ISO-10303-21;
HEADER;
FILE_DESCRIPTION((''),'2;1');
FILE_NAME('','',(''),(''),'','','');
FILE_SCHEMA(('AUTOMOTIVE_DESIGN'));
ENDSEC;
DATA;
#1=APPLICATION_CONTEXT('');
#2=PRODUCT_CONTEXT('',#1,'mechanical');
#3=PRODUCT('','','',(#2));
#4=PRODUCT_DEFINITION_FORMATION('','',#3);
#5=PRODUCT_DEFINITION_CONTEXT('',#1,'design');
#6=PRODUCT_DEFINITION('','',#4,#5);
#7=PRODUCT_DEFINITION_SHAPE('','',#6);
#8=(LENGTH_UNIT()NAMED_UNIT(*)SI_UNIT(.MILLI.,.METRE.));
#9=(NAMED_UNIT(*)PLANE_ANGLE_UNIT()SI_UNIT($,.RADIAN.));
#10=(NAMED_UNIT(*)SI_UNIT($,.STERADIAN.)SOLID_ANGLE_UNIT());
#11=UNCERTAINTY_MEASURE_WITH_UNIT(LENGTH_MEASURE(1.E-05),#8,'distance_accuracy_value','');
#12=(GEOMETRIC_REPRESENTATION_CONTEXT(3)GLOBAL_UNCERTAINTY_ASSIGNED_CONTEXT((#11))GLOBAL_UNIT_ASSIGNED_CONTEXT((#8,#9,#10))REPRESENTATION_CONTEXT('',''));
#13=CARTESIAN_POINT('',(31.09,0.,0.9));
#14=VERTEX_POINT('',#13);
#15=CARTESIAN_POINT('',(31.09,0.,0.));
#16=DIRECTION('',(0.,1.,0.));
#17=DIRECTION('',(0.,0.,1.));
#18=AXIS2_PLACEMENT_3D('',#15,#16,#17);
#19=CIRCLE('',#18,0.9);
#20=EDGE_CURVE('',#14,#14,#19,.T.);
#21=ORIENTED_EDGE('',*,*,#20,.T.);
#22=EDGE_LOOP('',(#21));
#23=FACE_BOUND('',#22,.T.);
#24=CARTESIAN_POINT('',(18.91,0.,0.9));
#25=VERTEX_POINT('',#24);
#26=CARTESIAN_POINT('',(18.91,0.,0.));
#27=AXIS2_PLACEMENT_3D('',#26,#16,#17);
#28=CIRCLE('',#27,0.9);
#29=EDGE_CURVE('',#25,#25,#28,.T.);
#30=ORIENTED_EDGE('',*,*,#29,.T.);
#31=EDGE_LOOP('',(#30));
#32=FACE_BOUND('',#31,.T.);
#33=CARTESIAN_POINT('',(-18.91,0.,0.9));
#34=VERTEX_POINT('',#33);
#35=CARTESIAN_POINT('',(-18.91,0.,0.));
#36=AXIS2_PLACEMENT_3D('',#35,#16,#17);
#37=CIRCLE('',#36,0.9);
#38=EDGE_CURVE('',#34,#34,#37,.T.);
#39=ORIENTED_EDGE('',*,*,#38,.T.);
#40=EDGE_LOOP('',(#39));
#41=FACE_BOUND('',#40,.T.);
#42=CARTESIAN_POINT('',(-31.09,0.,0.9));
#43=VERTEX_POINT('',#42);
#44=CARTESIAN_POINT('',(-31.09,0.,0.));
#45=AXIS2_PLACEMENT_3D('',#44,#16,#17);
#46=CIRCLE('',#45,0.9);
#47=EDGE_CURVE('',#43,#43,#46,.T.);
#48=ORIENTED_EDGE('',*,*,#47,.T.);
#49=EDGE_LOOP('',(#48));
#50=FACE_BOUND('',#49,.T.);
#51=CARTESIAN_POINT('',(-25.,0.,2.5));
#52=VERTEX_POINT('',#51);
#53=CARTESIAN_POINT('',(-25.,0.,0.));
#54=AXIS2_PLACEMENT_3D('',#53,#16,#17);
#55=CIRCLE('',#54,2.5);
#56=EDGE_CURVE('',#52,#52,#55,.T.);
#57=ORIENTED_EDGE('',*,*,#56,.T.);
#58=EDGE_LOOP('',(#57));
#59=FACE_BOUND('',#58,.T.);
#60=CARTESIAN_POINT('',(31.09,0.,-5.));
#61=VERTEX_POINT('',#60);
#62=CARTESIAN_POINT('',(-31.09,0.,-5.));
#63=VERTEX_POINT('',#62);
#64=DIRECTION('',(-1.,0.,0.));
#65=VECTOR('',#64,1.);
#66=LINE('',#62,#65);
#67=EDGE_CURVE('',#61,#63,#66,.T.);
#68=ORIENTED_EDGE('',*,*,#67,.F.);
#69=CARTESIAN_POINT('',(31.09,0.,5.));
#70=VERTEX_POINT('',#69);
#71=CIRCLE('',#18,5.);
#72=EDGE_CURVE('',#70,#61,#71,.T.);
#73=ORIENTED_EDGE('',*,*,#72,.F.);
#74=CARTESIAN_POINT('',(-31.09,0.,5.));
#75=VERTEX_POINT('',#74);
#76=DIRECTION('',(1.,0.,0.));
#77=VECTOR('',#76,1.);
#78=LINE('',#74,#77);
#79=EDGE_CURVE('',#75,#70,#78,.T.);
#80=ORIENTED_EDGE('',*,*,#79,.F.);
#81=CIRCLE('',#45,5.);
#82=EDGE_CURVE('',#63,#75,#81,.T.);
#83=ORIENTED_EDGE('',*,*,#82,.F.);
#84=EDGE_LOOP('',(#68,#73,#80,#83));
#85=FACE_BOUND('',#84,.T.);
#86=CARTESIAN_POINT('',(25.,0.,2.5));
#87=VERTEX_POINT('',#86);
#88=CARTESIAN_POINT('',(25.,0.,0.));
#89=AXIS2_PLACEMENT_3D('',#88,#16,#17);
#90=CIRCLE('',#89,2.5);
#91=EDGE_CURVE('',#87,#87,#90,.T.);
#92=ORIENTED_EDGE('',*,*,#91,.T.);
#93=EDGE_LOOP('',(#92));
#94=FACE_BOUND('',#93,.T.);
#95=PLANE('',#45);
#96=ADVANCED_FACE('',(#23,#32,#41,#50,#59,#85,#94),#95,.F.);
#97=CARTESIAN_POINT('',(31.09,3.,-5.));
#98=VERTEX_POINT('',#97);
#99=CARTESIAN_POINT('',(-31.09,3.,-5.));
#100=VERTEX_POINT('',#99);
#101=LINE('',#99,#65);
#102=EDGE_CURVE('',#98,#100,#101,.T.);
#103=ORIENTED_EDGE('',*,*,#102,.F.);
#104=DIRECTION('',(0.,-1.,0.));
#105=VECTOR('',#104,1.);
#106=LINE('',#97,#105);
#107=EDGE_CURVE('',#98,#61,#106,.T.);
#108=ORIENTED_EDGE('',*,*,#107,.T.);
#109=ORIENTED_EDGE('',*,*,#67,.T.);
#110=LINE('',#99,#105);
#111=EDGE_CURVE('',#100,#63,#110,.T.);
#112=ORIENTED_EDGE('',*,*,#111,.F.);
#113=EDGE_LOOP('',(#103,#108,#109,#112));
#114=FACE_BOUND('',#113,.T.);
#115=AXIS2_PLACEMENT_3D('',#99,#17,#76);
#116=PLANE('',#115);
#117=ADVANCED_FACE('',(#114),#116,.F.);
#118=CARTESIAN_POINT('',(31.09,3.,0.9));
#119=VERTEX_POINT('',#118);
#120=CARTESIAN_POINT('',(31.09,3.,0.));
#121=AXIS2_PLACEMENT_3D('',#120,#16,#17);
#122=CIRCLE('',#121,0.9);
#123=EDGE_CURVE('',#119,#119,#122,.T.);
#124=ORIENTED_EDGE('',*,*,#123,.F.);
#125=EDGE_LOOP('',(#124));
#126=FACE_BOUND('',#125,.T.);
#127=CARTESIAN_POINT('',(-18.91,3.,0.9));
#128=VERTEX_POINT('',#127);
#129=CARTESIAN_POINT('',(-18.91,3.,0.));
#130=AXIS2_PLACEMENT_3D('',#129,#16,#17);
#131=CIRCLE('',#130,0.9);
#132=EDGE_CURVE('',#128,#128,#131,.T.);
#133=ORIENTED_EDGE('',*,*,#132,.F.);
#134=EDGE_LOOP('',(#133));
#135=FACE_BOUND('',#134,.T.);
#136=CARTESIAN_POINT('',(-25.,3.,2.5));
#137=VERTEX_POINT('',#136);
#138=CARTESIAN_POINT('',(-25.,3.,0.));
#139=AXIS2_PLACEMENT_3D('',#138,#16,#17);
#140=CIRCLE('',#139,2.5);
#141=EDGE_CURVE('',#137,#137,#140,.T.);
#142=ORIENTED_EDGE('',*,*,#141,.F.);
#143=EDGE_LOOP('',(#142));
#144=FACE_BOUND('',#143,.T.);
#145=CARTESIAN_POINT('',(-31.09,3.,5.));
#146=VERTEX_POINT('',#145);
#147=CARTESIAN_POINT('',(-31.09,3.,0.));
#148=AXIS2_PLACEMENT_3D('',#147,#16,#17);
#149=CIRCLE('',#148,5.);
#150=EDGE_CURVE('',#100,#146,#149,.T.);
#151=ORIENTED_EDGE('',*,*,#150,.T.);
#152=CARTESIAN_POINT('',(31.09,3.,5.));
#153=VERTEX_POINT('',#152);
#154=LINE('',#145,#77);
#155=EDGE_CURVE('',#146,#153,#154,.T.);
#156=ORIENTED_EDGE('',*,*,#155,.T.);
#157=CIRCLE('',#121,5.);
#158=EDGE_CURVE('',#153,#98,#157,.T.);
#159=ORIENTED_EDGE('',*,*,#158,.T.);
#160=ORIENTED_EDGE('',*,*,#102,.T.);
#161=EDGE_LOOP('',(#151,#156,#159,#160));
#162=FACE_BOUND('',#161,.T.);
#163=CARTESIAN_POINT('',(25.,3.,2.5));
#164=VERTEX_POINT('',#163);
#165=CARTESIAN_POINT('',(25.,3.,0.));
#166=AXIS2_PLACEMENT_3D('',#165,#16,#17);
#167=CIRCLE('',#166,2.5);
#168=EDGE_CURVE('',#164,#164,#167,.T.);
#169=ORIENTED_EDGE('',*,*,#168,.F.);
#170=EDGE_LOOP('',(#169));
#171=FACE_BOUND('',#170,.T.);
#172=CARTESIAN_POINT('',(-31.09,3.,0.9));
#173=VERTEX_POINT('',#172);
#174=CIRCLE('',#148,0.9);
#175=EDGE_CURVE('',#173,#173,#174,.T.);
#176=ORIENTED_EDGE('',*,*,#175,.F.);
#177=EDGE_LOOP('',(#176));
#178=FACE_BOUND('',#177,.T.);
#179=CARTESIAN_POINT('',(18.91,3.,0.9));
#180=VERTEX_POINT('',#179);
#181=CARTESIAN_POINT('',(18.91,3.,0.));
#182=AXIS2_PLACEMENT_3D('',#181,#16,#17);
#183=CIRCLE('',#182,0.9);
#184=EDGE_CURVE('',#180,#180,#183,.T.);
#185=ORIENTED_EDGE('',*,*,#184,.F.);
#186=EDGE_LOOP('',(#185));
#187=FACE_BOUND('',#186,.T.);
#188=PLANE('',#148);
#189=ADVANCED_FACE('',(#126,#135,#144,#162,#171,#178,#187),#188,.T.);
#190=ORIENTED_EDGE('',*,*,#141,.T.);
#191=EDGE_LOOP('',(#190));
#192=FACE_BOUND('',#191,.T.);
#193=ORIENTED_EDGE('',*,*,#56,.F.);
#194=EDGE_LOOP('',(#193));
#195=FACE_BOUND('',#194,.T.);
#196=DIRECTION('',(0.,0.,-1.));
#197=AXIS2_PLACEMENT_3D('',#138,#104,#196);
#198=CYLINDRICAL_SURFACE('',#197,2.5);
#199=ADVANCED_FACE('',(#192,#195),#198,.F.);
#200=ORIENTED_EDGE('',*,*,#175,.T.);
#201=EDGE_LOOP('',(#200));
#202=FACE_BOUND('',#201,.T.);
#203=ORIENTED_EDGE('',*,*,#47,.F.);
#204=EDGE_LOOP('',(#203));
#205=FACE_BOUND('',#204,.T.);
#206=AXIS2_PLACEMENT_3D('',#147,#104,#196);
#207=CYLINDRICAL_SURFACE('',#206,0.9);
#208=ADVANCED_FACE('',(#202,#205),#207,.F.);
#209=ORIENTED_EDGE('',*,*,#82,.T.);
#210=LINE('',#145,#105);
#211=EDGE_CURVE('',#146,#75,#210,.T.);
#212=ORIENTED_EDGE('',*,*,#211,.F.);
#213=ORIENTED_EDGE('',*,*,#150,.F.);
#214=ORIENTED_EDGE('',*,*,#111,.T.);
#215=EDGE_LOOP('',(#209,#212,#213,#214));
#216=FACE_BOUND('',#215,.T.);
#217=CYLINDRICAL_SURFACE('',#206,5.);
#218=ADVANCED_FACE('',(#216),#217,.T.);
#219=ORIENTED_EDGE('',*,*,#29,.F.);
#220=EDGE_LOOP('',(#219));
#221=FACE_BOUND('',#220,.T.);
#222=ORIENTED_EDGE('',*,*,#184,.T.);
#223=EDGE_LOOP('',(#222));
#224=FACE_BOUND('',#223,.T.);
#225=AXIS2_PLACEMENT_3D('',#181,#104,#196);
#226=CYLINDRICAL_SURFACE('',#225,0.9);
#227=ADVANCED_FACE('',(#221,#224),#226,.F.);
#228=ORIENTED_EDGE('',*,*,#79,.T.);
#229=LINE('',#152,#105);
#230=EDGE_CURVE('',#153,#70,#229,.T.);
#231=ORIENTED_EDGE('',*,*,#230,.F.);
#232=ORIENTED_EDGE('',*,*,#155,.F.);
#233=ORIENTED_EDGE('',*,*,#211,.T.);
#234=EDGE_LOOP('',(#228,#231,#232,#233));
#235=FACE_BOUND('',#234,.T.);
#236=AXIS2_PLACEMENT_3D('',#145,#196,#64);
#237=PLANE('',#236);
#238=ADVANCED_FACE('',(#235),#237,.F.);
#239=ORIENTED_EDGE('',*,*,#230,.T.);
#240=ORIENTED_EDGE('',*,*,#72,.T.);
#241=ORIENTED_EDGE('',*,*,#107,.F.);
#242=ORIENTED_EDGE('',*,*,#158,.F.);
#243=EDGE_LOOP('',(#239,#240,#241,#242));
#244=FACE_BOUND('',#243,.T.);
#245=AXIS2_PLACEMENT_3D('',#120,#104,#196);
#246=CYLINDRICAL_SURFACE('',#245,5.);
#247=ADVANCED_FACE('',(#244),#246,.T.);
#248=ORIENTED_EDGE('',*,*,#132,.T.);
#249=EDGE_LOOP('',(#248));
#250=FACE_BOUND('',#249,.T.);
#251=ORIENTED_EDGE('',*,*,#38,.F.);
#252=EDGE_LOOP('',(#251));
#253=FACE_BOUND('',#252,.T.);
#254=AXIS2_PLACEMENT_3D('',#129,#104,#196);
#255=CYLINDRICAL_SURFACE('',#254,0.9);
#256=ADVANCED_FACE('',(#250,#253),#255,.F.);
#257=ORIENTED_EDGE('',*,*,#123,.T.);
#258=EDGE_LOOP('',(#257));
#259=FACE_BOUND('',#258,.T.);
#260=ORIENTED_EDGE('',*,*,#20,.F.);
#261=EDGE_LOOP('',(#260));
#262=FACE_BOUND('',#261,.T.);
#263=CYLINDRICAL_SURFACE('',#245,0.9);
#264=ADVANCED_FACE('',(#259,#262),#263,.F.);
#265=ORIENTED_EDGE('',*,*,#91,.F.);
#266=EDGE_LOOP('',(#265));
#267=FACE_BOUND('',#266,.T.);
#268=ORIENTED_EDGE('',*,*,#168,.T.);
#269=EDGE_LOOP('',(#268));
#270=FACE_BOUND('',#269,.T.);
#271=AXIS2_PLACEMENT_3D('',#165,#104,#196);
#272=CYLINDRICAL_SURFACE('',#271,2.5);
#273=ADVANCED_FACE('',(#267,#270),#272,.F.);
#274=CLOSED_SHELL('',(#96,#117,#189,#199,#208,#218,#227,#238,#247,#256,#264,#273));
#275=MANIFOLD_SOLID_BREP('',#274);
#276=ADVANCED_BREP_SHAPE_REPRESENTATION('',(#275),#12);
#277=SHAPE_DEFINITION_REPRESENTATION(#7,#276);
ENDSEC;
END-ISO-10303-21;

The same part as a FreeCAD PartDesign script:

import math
import FreeCAD as App
import Part
import Sketcher

V = App.Vector
Q = App.Units.Quantity

doc = App.newDocument("Part")
body = doc.addObject("PartDesign::Body", "Body")

sketch1 = body.newObject("Sketcher::SketchObject", "Sketch")
sketch1.AttachmentSupport = (doc.getObject("XZ_Plane"), [""])
sketch1.MapMode = "FlatFace"
sketch1.addGeometry([
    Part.LineSegment(V(31.1, -5, 0), V(-31.1, -5, 0)),
    Part.ArcOfCircle(Part.Circle(V(-31.1, 0, 0), V(0, 0, 1), 5), math.radians(90), math.radians(270)),
    Part.LineSegment(V(-31.1, 5, 0), V(31.1, 5, 0)),
    Part.ArcOfCircle(Part.Circle(V(31.1, 0, 0), V(0, 0, 1), 5), math.radians(-90), math.radians(90)),
    Part.Circle(V(31.1, 0, 0), V(0, 0, 1), 0.9),
    Part.Circle(V(25, 0, 0), V(0, 0, 1), 2.5),
    Part.Circle(V(18.9, 0, 0), V(0, 0, 1), 0.9),
    Part.Circle(V(-18.9, 0, 0), V(0, 0, 1), 0.9),
    Part.Circle(V(-25, 0, 0), V(0, 0, 1), 2.5),
    Part.Circle(V(-31.1, 0, 0), V(0, 0, 1), 0.9),
], False)
sketch1.addConstraint([
    Sketcher.Constraint("Tangent", 0, 2, 1, 2),
    Sketcher.Constraint("Tangent", 1, 1, 2, 1),
    Sketcher.Constraint("Tangent", 2, 2, 3, 2),
    Sketcher.Constraint("Tangent", 3, 1, 0, 1),
    Sketcher.Constraint("Horizontal", 0),
    Sketcher.Constraint("Horizontal", 2),
    Sketcher.Constraint("Coincident", 4, 3, 3, 3),
    Sketcher.Constraint("Coincident", 9, 3, 1, 3),
    Sketcher.Constraint("Equal", 4, 6),
    Sketcher.Constraint("Equal", 6, 7),
    Sketcher.Constraint("Equal", 5, 8),
    Sketcher.Constraint("Equal", 7, 9),
    Sketcher.Constraint("Symmetric", 1, 3, 3, 3, -1, 1),
    Sketcher.Constraint("Symmetric", 6, 3, 7, 3, -1, 1),
    Sketcher.Constraint("Symmetric", 5, 3, 8, 3, -1, 1),
    Sketcher.Constraint("PointOnObject", 5, 3, -1),
    Sketcher.Constraint("PointOnObject", 6, 3, -1),
    Sketcher.Constraint("Diameter", 5, Q("5 mm")),
    Sketcher.Constraint("Radius", 1, Q("5 mm")),
    Sketcher.Constraint("Diameter", 4, Q("1.8 mm")),
    Sketcher.Constraint("DistanceX", -1, 1, 5, 3, Q("25 mm")),
    Sketcher.Constraint("DistanceX", 1, 3, 6, 3, Q("50 mm")),
    Sketcher.Constraint("DistanceX", 0, 2, 0, 1, Q("62.18 mm")),
])
pad1 = body.newObject("PartDesign::Pad", "Pad")
pad1.Profile = sketch1
pad1.Length = 3
pad1.Reversed = True

doc.recompute()
